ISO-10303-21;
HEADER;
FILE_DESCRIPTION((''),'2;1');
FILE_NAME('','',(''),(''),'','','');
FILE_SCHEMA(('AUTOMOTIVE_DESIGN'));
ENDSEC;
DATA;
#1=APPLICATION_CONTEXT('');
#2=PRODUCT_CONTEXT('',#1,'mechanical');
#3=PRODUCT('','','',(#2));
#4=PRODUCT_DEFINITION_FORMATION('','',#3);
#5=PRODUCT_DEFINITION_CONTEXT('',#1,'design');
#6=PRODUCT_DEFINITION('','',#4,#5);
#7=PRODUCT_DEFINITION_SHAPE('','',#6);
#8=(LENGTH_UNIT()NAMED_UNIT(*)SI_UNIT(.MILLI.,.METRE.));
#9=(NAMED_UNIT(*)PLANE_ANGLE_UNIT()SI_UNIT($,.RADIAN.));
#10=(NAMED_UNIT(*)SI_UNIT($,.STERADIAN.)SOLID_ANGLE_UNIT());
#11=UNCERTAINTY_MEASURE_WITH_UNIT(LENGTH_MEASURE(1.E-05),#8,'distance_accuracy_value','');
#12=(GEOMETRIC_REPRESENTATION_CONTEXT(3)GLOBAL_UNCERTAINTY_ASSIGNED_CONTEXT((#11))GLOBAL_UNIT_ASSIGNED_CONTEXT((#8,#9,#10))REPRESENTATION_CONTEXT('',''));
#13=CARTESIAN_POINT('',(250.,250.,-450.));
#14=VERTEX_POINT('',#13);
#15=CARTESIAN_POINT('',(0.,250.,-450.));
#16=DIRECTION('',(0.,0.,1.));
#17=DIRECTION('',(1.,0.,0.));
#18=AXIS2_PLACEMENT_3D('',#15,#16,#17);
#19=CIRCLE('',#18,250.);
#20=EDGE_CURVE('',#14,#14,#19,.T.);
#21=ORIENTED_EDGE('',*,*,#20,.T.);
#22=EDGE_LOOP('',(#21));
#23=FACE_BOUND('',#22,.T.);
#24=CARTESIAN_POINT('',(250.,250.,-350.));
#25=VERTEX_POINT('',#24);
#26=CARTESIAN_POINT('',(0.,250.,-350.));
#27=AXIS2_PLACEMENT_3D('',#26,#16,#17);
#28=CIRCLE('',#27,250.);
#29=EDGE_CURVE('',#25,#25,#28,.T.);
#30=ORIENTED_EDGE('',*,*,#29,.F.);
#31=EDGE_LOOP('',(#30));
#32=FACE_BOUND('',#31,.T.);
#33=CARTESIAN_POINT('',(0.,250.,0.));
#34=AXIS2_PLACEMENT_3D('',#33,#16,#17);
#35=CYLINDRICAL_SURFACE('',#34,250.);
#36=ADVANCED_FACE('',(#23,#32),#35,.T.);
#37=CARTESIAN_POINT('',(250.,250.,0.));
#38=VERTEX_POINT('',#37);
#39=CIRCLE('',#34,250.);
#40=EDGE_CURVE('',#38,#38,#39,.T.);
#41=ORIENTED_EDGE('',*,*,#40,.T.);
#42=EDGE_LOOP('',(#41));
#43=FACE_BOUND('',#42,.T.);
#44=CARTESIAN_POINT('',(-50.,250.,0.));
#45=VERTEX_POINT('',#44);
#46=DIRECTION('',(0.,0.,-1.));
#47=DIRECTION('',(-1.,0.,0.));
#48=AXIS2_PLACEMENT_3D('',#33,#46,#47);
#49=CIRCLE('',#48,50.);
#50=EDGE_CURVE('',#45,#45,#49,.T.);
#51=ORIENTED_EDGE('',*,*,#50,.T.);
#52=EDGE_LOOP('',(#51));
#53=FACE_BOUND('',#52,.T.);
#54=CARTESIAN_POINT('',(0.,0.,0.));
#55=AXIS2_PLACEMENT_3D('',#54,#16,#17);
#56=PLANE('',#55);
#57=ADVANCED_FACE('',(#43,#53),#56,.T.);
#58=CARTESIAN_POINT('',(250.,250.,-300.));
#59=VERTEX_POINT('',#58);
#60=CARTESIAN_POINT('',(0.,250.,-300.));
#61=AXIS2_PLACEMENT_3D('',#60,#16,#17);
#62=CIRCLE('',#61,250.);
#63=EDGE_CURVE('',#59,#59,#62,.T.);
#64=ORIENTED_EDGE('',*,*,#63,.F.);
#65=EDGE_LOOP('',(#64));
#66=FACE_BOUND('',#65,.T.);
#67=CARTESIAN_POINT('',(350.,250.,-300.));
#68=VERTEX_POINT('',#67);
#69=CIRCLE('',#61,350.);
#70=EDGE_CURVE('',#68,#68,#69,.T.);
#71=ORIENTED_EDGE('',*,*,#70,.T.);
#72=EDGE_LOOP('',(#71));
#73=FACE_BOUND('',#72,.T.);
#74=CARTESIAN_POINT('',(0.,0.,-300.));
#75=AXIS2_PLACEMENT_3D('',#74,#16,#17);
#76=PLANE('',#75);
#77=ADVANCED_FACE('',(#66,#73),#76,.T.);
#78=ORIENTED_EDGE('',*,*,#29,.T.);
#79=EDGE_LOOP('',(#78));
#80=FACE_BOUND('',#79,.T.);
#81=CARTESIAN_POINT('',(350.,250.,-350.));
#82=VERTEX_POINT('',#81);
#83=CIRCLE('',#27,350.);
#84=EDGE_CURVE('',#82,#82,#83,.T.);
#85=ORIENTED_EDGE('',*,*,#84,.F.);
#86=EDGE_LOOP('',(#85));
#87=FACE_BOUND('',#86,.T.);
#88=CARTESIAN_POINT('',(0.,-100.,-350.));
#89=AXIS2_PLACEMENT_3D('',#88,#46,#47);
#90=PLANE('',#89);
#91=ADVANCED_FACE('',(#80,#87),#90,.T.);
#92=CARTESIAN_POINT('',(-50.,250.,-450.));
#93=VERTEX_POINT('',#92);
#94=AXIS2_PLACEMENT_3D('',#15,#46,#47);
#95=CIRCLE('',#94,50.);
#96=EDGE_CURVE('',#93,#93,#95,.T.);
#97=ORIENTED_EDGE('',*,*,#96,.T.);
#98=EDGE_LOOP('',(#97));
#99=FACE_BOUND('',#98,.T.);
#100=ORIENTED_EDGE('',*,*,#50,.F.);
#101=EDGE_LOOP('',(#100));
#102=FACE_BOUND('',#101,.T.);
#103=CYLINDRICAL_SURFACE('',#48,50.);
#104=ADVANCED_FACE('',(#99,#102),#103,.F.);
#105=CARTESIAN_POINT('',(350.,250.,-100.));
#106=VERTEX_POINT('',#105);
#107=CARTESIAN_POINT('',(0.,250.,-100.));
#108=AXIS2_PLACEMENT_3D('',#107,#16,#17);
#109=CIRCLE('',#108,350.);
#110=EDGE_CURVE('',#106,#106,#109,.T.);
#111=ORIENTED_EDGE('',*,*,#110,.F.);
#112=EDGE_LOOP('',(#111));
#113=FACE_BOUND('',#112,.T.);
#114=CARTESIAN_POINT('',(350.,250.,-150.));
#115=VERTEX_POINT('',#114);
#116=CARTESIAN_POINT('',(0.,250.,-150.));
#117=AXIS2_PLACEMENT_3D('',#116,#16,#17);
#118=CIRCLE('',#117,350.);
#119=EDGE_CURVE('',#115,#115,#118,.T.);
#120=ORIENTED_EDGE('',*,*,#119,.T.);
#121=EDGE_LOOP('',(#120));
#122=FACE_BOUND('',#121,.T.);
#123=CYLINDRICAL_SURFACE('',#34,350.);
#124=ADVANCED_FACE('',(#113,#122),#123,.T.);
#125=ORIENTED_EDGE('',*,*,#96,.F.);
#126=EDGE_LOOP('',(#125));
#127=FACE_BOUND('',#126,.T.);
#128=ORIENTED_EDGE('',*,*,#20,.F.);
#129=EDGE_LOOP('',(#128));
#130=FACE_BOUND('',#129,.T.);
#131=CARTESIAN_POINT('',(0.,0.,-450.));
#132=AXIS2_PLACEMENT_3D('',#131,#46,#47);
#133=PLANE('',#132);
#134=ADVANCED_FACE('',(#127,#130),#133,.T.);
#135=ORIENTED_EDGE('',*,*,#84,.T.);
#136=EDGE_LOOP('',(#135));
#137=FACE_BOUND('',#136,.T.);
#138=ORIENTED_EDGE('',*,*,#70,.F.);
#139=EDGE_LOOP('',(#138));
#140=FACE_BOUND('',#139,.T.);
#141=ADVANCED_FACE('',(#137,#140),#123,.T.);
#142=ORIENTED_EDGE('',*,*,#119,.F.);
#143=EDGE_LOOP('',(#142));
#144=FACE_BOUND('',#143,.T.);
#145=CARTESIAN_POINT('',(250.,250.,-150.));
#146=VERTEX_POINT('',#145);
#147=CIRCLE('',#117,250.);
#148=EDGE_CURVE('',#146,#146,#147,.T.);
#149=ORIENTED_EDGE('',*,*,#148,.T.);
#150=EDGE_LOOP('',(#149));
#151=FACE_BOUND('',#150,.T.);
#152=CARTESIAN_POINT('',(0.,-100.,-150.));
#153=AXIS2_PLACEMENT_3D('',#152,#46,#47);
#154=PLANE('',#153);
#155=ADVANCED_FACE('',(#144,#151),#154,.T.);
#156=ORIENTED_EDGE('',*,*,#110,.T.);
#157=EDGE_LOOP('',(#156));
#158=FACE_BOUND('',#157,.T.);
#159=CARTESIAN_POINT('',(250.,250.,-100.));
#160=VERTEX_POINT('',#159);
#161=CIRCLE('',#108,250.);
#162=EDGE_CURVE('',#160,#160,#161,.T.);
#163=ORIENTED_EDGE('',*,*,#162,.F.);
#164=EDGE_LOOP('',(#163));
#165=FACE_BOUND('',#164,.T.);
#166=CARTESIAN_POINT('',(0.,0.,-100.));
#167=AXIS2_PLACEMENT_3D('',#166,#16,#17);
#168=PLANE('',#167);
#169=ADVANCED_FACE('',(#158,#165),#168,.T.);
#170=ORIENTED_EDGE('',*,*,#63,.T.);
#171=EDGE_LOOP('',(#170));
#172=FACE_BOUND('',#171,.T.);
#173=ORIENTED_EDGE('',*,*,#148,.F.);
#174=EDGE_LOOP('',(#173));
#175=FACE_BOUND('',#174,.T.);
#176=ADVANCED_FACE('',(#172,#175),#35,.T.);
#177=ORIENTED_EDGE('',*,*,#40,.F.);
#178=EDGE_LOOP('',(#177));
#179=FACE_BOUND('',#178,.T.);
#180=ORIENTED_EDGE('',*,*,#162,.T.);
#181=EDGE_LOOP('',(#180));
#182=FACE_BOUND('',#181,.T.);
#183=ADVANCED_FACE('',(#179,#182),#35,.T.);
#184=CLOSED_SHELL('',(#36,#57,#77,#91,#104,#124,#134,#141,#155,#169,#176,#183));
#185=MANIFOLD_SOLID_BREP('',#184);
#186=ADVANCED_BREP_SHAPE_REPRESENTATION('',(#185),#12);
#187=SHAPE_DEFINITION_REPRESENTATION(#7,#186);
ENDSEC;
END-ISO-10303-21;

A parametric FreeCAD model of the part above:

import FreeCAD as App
import Part
import Sketcher
from FreeCAD import Vector
Q = App.Units.Quantity


def add_polygon(sketch, points):
    """Adds a closed chain of lines whose ends are joined by coincident constraints."""
    first, n = sketch.GeometryCount, len(points)
    for a, b in zip(points, points[1:] + points[:1]):
        sketch.addGeometry(Part.LineSegment(App.Vector(*a, 0), App.Vector(*b, 0)), False)
    for i in range(n):
        sketch.addConstraint(Sketcher.Constraint("Coincident", first + i, 2, first + (i + 1) % n, 1))

doc = App.newDocument("Part")
body = doc.addObject("PartDesign::Body", "Body")

sketch1 = body.newObject("Sketcher::SketchObject", "Sketch")
sketch1.AttachmentSupport = (doc.getObject("YZ_Plane"), [""])
sketch1.MapMode = "FlatFace"
add_polygon(sketch1, [(250, 0), (0, 0), (0, -100), (-100, -100), (-100, -150), (0, -150), (0, -300), (-100, -300), (-100, -350), (0, -350), (0, -450), (250, -450)])
sketch1.addGeometry(Part.LineSegment(Vector(250, 0, 0), Vector(250, -450, 0)), True)
sketch1.addConstraint(Sketcher.Constraint("Horizontal", 0))
sketch1.addConstraint(Sketcher.Constraint("Vertical", 1))
sketch1.addConstraint(Sketcher.Constraint("Horizontal", 2))
sketch1.addConstraint(Sketcher.Constraint("Vertical", 3))
sketch1.addConstraint(Sketcher.Constraint("Horizontal", 4))
sketch1.addConstraint(Sketcher.Constraint("Vertical", 5))
sketch1.addConstraint(Sketcher.Constraint("Horizontal", 6))
sketch1.addConstraint(Sketcher.Constraint("Vertical", 7))
sketch1.addConstraint(Sketcher.Constraint("Horizontal", 8))
sketch1.addConstraint(Sketcher.Constraint("Vertical", 9))
sketch1.addConstraint(Sketcher.Constraint("Horizontal", 10))
sketch1.addConstraint(Sketcher.Constraint("Vertical", 11))
sketch1.addConstraint(Sketcher.Constraint("Vertical", 12))
sketch1.addConstraint(Sketcher.Constraint("Coincident", 0, 2, -1, 1))
sketch1.addConstraint(Sketcher.Constraint("Coincident", 12, 1, 11, 2))
sketch1.addConstraint(Sketcher.Constraint("PointOnObject", 4, 2, -2))
sketch1.addConstraint(Sketcher.Constraint("PointOnObject", 8, 2, -2))
sketch1.addConstraint(Sketcher.Constraint("Horizontal", 9, 2, 12, 2))
sketch1.addConstraint(Sketcher.Constraint("Vertical", 3, 2, 6, 2))
sketch1.addConstraint(Sketcher.Constraint("Equal", 8, 1))
sketch1.addConstraint(Sketcher.Constraint("Equal", 3, 7))
sketch1.addConstraint(Sketcher.Constraint("Equal", 1, 9))
sketch1.addConstraint(Sketcher.Constraint("DistanceX", 0, 2, 0, 1, Q("250 mm")))
sketch1.addConstraint(Sketcher.Constraint("DistanceX", 2, 2, 2, 1, Q("100 mm")))
sketch1.addConstraint(Sketcher.Constraint("DistanceY", 3, 2, 3, 1, Q("50 mm")))
sketch1.addConstraint(Sketcher.Constraint("DistanceY", 5, 2, 5, 1, Q("150 mm")))
revolution = body.newObject("PartDesign::Revolution", "Revolution")
revolution.Profile = sketch1
revolution.ReferenceAxis = (sketch1, ["Axis0"])
revolution.Angle = 360

sketch2 = body.newObject("Sketcher::SketchObject", "Sketch001")
sketch2.AttachmentSupport = (doc.getObject("XY_Plane"), [""])
sketch2.MapMode = "FlatFace"
sketch2.AttachmentOffset = App.Placement(Vector(0, 0, -450), App.Rotation())
sketch2.addGeometry(Part.Circle(Vector(0, 250, 0), Vector(0, 0, 1), 50), False)
sketch2.addConstraint(Sketcher.Constraint("PointOnObject", 0, 3, -2))
sketch2.addConstraint(Sketcher.Constraint("Diameter", 0, Q("100 mm")))
sketch2.addConstraint(Sketcher.Constraint("DistanceY", -1, 1, 0, 3, Q("250 mm")))
pocket1 = body.newObject("PartDesign::Pocket", "Pocket")
pocket1.Profile = sketch2
pocket1.Type = "ThroughAll"
pocket1.Reversed = True

doc.recompute()
